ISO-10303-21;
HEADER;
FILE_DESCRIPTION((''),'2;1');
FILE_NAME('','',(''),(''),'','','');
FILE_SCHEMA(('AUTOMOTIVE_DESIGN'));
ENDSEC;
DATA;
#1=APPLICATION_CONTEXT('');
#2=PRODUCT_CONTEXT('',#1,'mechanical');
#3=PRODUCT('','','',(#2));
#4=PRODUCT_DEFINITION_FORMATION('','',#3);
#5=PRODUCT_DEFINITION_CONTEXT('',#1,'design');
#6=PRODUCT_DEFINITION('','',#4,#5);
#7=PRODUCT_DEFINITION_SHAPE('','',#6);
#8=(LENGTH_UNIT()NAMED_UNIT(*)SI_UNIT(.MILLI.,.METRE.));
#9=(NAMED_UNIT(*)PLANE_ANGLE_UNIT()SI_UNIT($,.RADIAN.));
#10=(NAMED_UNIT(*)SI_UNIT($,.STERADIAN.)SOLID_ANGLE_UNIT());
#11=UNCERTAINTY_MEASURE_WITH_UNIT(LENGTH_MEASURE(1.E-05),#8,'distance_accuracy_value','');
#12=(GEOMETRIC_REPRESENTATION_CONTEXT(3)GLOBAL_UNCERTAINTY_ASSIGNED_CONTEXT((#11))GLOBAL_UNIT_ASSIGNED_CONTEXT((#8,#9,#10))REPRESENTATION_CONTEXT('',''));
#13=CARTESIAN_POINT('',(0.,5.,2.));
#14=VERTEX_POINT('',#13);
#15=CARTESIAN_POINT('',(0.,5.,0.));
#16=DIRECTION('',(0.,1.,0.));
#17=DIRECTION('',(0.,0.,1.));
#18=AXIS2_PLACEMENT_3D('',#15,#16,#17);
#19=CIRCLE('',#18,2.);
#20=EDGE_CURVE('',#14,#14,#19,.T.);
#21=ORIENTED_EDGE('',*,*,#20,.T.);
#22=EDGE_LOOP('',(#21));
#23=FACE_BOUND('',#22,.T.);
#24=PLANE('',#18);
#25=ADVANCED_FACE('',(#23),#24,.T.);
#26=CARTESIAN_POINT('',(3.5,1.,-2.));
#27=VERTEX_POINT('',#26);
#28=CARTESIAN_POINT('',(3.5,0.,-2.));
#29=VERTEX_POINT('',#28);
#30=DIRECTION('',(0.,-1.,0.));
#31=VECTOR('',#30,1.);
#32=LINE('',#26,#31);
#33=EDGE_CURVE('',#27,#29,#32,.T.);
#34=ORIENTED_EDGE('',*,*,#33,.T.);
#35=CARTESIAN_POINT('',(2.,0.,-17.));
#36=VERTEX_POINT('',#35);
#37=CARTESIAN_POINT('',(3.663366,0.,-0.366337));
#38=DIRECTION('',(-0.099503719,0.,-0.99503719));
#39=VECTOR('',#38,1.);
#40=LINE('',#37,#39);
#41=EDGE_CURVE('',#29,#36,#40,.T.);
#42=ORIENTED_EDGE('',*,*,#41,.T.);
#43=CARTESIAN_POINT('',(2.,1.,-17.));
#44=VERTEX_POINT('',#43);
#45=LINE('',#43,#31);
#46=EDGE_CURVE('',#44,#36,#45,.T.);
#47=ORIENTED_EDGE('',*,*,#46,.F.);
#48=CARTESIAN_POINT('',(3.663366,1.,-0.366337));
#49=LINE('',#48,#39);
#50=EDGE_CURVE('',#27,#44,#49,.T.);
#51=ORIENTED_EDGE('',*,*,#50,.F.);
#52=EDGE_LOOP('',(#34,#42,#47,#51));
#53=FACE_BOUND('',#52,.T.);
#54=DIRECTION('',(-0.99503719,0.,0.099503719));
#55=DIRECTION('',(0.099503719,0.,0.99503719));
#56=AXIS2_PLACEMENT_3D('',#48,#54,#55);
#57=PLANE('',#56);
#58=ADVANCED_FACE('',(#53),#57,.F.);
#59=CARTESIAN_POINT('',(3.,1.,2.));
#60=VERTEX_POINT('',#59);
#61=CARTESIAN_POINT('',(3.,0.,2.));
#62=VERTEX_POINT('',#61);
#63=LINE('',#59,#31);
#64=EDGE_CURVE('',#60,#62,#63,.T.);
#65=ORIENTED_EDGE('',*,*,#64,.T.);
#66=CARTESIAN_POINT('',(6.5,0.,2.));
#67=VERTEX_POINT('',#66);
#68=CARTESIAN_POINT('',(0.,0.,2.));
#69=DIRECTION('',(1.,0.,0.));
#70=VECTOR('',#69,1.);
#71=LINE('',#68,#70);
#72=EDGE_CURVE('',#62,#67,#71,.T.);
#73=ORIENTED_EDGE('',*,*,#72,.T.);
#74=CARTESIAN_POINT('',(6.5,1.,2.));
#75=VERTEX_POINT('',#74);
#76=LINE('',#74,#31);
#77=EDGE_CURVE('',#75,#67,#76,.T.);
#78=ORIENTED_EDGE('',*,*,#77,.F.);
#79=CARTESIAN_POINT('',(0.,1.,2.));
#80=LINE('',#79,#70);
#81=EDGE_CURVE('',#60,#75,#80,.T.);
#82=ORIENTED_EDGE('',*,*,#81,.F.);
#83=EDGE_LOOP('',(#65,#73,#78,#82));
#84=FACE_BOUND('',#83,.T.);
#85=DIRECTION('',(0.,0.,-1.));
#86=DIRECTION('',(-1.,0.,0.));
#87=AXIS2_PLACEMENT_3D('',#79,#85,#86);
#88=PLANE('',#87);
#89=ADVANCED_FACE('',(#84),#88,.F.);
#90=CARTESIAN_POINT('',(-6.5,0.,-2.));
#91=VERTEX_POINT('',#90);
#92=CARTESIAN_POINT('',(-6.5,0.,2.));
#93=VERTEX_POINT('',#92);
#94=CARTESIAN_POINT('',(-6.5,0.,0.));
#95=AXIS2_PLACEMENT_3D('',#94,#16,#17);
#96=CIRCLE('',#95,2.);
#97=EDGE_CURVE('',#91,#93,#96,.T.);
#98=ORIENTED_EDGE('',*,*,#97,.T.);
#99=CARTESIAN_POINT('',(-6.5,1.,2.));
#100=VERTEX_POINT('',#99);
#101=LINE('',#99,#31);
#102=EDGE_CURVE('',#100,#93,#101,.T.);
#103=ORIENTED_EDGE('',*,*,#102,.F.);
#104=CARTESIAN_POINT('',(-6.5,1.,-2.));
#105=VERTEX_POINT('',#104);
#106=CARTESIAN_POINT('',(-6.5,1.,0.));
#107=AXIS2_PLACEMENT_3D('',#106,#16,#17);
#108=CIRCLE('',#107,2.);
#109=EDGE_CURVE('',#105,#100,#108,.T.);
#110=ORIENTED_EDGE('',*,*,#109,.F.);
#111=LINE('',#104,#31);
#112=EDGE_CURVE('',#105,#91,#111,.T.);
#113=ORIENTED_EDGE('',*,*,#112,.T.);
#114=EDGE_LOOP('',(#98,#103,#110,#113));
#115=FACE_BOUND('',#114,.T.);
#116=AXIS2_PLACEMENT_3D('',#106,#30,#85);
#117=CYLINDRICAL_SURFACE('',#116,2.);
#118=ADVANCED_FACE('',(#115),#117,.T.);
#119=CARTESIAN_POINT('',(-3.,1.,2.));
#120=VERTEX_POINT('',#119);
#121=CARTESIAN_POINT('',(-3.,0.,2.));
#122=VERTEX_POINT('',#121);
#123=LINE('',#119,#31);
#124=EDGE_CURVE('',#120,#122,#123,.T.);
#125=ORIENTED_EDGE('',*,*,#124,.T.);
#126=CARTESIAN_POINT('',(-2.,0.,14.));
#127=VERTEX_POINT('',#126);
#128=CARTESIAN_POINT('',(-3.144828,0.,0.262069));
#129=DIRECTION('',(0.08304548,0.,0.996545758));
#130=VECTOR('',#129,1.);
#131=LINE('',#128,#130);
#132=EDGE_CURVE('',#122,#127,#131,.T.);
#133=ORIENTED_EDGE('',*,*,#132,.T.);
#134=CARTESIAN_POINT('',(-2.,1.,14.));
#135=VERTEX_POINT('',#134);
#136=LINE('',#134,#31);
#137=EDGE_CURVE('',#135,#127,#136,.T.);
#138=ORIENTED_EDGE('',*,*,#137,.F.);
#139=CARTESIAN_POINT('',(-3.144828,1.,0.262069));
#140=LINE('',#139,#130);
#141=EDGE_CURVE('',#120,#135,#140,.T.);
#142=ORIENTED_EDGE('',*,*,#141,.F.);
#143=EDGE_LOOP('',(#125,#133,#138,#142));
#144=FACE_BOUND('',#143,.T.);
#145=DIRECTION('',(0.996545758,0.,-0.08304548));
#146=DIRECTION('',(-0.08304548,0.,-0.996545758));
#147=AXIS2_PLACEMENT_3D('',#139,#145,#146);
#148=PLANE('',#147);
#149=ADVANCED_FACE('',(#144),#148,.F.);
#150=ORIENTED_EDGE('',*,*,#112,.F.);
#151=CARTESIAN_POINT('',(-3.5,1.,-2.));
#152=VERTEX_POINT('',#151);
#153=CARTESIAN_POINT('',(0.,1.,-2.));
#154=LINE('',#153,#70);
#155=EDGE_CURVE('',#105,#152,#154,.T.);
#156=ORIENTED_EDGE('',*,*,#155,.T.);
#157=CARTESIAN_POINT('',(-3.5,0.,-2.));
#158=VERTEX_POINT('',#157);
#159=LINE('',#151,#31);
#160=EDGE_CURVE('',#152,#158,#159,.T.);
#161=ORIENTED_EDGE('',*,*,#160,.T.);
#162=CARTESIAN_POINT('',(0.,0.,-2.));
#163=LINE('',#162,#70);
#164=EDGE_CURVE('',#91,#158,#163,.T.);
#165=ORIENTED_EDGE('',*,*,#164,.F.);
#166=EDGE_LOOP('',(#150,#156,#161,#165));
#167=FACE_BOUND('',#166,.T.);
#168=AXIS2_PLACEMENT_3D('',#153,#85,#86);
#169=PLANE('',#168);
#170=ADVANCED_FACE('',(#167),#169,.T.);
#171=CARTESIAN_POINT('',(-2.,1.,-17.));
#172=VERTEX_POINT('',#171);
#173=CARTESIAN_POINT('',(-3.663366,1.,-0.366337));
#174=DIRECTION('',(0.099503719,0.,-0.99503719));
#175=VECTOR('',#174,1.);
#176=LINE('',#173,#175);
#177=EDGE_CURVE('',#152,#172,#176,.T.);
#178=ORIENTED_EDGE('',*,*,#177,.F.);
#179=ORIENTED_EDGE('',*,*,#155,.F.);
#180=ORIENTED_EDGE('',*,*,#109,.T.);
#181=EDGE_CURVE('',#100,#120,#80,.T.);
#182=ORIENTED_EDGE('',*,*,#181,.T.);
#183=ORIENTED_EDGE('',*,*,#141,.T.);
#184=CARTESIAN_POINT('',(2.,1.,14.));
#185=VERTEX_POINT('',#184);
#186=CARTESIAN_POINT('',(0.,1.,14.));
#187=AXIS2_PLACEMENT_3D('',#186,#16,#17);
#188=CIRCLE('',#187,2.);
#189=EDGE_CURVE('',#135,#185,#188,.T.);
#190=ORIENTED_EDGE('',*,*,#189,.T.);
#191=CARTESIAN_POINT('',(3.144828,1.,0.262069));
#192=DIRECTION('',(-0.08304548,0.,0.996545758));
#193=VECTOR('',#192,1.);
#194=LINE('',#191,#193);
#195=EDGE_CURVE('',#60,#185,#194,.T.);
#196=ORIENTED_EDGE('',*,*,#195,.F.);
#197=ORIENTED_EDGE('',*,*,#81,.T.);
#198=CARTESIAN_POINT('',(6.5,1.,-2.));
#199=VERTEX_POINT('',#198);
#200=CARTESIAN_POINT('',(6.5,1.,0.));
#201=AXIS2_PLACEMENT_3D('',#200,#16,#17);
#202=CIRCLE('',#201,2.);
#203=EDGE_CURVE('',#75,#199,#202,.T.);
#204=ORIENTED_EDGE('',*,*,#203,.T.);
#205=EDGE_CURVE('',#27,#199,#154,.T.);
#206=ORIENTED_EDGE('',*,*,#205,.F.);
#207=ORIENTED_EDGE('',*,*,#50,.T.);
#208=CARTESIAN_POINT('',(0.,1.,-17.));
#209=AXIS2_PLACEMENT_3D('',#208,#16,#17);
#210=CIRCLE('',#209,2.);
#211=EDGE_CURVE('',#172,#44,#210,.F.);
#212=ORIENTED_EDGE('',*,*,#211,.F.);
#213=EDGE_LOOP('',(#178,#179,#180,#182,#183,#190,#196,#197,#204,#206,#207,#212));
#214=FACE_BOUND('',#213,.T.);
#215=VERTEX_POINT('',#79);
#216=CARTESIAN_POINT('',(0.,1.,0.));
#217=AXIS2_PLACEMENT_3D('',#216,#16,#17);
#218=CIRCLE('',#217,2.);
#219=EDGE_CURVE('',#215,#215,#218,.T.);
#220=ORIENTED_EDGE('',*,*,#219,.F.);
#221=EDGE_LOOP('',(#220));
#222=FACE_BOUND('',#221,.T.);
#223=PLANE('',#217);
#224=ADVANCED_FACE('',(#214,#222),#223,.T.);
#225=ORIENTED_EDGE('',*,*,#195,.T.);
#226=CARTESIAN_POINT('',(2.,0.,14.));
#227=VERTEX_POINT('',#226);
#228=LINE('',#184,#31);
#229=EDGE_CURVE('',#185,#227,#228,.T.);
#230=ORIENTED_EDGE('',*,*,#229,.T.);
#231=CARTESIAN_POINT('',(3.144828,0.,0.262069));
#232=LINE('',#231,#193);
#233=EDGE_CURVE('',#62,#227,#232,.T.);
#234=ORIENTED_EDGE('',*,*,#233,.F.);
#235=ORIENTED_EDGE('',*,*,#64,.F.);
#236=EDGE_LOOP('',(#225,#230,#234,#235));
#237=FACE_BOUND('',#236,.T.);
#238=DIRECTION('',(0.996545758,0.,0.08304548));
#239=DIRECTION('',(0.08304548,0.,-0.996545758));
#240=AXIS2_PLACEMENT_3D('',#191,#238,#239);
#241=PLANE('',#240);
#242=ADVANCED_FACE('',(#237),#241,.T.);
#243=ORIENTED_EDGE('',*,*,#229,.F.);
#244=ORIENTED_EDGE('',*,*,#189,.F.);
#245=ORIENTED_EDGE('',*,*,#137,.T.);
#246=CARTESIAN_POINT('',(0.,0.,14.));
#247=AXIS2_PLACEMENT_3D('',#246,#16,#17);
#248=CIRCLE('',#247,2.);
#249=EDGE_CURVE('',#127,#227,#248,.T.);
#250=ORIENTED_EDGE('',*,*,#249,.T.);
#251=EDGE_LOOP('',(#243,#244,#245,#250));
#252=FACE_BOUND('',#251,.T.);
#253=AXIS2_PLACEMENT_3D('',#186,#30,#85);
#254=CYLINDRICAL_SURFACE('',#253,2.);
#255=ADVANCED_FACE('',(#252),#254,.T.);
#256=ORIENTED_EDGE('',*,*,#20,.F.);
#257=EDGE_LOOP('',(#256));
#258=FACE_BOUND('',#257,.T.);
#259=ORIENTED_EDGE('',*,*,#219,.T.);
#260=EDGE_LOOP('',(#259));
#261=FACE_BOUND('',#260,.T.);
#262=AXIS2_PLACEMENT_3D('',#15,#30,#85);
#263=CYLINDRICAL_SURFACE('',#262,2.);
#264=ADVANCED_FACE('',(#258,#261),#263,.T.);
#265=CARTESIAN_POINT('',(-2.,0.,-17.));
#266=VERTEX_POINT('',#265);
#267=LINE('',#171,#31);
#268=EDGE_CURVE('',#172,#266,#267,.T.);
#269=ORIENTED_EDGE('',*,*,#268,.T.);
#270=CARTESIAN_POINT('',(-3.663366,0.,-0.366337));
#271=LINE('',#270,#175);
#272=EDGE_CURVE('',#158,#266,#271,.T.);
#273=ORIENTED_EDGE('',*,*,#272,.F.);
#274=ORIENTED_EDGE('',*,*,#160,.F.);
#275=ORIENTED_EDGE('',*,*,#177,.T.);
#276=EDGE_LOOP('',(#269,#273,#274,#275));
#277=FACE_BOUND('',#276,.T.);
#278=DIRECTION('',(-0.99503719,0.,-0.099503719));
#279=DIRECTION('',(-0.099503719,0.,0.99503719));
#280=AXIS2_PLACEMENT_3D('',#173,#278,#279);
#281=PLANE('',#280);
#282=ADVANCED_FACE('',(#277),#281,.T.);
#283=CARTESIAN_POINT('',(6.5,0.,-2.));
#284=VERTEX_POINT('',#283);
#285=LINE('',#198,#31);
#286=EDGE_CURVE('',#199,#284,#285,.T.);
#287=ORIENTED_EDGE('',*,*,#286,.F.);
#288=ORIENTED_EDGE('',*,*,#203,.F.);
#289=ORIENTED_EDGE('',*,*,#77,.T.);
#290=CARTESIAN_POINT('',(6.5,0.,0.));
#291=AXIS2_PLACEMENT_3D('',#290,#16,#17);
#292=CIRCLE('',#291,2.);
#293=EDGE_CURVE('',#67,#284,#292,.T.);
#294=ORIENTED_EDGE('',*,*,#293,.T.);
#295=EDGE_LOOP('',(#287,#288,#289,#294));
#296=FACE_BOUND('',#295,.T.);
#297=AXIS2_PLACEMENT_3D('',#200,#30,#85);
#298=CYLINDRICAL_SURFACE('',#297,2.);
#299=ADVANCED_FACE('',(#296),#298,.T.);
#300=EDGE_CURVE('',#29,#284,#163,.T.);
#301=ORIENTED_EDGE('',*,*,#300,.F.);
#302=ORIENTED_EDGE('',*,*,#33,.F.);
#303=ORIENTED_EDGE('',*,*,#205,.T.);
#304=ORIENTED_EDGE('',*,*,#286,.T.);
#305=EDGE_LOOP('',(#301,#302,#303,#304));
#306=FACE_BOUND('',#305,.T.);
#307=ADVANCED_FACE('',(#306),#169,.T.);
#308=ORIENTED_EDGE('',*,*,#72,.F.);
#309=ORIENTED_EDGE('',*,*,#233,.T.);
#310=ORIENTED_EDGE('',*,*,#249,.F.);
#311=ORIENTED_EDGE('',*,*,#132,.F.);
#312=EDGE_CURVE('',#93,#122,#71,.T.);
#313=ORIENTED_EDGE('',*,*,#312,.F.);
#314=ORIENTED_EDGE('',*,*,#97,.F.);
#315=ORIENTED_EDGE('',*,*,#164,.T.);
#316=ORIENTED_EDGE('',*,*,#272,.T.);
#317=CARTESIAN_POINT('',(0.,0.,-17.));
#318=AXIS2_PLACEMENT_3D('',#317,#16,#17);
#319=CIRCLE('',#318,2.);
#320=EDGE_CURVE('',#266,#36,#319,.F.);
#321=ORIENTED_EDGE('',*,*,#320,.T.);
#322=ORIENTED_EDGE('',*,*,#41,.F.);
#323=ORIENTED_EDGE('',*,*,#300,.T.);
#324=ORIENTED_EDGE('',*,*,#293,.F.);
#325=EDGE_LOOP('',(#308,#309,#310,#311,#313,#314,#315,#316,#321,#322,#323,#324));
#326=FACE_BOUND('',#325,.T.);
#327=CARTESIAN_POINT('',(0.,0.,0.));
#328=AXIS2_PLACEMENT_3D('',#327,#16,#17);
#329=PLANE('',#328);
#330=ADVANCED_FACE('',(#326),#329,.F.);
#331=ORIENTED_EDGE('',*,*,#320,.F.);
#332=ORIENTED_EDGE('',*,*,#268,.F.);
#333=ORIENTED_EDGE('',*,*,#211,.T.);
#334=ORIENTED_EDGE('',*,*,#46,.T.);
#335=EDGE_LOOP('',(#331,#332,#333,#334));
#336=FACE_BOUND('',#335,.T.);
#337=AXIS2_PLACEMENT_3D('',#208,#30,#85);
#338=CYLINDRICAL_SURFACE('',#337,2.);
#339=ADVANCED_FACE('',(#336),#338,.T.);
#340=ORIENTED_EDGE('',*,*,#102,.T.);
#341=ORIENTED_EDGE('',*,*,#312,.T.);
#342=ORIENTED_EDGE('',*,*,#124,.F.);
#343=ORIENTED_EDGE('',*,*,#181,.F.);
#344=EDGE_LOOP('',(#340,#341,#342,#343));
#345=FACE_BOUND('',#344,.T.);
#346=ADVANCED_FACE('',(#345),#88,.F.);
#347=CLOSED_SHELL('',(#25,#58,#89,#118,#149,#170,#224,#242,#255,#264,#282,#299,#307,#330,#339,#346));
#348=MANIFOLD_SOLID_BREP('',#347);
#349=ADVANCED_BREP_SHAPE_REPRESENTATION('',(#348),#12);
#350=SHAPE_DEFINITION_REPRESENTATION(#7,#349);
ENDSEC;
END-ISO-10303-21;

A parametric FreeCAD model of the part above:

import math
import FreeCAD as App
import Part
import Sketcher

doc = App.newDocument("Part")
params = doc.addObject("Spreadsheet::Sheet", "Params")
for row, (alias, value) in enumerate([
    ("sketch1_radius", "2 mm"),
    ("sketch1_width", "3 mm"),
    ("sketch1_width2", "3.5 mm"),
    ("pad1_length", "1 mm"),
    ("sketch2_diameter", "4 mm"),
    ("pad2_length", "4 mm"),
], start=1):
    params.set(f"A{row}", alias)
    params.set(f"B{row}", "=" + value)
    params.setAlias(f"B{row}", alias)

body = doc.addObject("PartDesign::Body", "Body")

sketch1 = body.newObject("Sketcher::SketchObject", "Sketch")
sketch1.AttachmentSupport = (doc.getObject("XZ_Plane"), [""])
sketch1.MapMode = "FlatFace"
sketch1.addGeometry(Part.LineSegment(App.Vector(-3.5, -2, 0), App.Vector(-6.5, -2, 0)), False)
sketch1.addGeometry(Part.ArcOfCircle(Part.Circle(App.Vector(-6.5, 0, 0), App.Vector(0, 0, 1), 2), math.radians(90), math.radians(270)), False)
sketch1.addGeometry(Part.LineSegment(App.Vector(-6.5, 2, 0), App.Vector(-3, 2, 0)), False)
sketch1.addGeometry(Part.LineSegment(App.Vector(-3, 2, 0), App.Vector(-2, 14, 0)), False)
sketch1.addGeometry(Part.ArcOfCircle(Part.Circle(App.Vector(0, 14, 0), App.Vector(0, 0, 1), 2), math.radians(0), math.radians(180)), False)
sketch1.addGeometry(Part.LineSegment(App.Vector(2, 14, 0), App.Vector(3, 2, 0)), False)
sketch1.addGeometry(Part.LineSegment(App.Vector(3, 2, 0), App.Vector(6.5, 2, 0)), False)
sketch1.addGeometry(Part.ArcOfCircle(Part.Circle(App.Vector(6.5, 0, 0), App.Vector(0, 0, 1), 2), math.radians(-90), math.radians(90)), False)
sketch1.addGeometry(Part.LineSegment(App.Vector(6.5, -2, 0), App.Vector(3.5, -2, 0)), False)
sketch1.addGeometry(Part.LineSegment(App.Vector(3.5, -2, 0), App.Vector(2, -17, 0)), False)
sketch1.addGeometry(Part.ArcOfCircle(Part.Circle(App.Vector(0, -17, 0), App.Vector(0, 0, 1), 2), math.radians(180), math.radians(360)), False)
sketch1.addGeometry(Part.LineSegment(App.Vector(-2, -17, 0), App.Vector(-3.5, -2, 0)), False)
sketch1.addConstraint(Sketcher.Constraint("Tangent", 0, 2, 1, 2))
sketch1.addConstraint(Sketcher.Constraint("Tangent", 1, 1, 2, 1))
sketch1.addConstraint(Sketcher.Constraint("Coincident", 2, 2, 3, 1))
sketch1.addConstraint(Sketcher.Constraint("Coincident", 3, 2, 4, 2))
sketch1.addConstraint(Sketcher.Constraint("Coincident", 4, 1, 5, 1))
sketch1.addConstraint(Sketcher.Constraint("Coincident", 5, 2, 6, 1))
sketch1.addConstraint(Sketcher.Constraint("Tangent", 6, 2, 7, 2))
sketch1.addConstraint(Sketcher.Constraint("Tangent", 7, 1, 8, 1))
sketch1.addConstraint(Sketcher.Constraint("Coincident", 8, 2, 9, 1))
sketch1.addConstraint(Sketcher.Constraint("Coincident", 9, 2, 10, 2))
sketch1.addConstraint(Sketcher.Constraint("Coincident", 10, 1, 11, 1))
sketch1.addConstraint(Sketcher.Constraint("Coincident", 11, 2, 0, 1))
sketch1.addConstraint(Sketcher.Constraint("Horizontal", 0))
sketch1.addConstraint(Sketcher.Constraint("Horizontal", 2))
sketch1.addConstraint(Sketcher.Constraint("Horizontal", 6))
sketch1.addConstraint(Sketcher.Constraint("Horizontal", 8))
sketch1.addConstraint(Sketcher.Constraint("Equal", 1, 4))
sketch1.addConstraint(Sketcher.Constraint("Equal", 4, 7))
sketch1.addConstraint(Sketcher.Constraint("Equal", 7, 10))
sketch1.addConstraint(Sketcher.Constraint("Symmetric", 1, 3, 7, 3, -1, 1))
sketch1.addConstraint(Sketcher.Constraint("Symmetric", 3, 2, 4, 1, -2))
sketch1.addConstraint(Sketcher.Constraint("Symmetric", 2, 2, 5, 2, -2))
sketch1.addConstraint(Sketcher.Constraint("Symmetric", 9, 2, 10, 1, -2))
sketch1.addConstraint(Sketcher.Constraint("Horizontal", 4, 3, 3, 2))
sketch1.addConstraint(Sketcher.Constraint("Horizontal", 10, 3, 9, 2))
sketch1.addConstraint(Sketcher.Constraint("Equal", 0, 8))
sketch1.addConstraint(Sketcher.Constraint("Radius", 1, 2.0))
sketch1.addConstraint(Sketcher.Constraint("DistanceX", 0, 2, 0, 1, 3.0))
sketch1.addConstraint(Sketcher.Constraint("DistanceX", 2, 1, 2, 2, 3.5))
sketch1.addConstraint(Sketcher.Constraint("DistanceY", -1, 1, 4, 3, 14.0))
sketch1.addConstraint(Sketcher.Constraint("DistanceY", 10, 3, -1, 1, 17.0))
sketch1.addConstraint(Sketcher.Constraint("DistanceX", 2, 2, -1, 1, 3.0))
sketch1.setExpression("Constraints[26]", "Params.sketch1_radius")
sketch1.setExpression("Constraints[27]", "Params.sketch1_width")
sketch1.setExpression("Constraints[28]", "Params.sketch1_width2")
pad1 = body.newObject("PartDesign::Pad", "Pad")
pad1.Profile = sketch1
pad1.setExpression("Length", "Params.pad1_length")
pad1.Reversed = True

sketch2 = body.newObject("Sketcher::SketchObject", "Sketch001")
sketch2.AttachmentSupport = (doc.getObject("XZ_Plane"), [""])
sketch2.MapMode = "FlatFace"
sketch2.AttachmentOffset = App.Placement(App.Vector(0, 0, -1), App.Rotation())
sketch2.addGeometry(Part.Circle(App.Vector(0, 0, 0), App.Vector(0, 0, 1), 2), False)
sketch2.addConstraint(Sketcher.Constraint("Coincident", 0, 3, -1, 1))
sketch2.addConstraint(Sketcher.Constraint("Diameter", 0, 4.0))
sketch2.setExpression("Constraints[1]", "Params.sketch2_diameter")
pad2 = body.newObject("PartDesign::Pad", "Pad001")
pad2.Profile = sketch2
pad2.setExpression("Length", "Params.pad2_length")
pad2.Reversed = True

doc.recompute()
